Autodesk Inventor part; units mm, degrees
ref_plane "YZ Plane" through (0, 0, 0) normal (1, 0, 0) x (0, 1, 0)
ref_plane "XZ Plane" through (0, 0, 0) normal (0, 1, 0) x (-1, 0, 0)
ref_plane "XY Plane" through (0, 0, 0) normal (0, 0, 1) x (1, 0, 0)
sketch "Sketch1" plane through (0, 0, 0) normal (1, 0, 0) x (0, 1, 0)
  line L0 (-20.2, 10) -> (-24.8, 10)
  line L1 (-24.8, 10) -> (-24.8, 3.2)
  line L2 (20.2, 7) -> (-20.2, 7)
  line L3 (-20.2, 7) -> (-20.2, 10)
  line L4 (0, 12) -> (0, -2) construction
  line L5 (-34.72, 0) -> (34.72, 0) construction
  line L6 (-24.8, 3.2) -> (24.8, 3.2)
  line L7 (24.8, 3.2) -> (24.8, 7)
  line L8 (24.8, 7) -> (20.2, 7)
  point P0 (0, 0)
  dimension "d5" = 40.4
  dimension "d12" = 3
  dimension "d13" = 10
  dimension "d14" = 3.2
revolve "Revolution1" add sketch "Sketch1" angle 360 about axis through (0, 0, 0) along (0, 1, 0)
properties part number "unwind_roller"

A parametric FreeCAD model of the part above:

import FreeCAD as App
import Part
import Sketcher


def add_polygon(sketch, points):
    """Adds a closed chain of lines whose ends are joined by coincident constraints."""
    first, n = sketch.GeometryCount, len(points)
    for a, b in zip(points, points[1:] + points[:1]):
        sketch.addGeometry(Part.LineSegment(App.Vector(*a, 0), App.Vector(*b, 0)), False)
    for i in range(n):
        sketch.addConstraint(Sketcher.Constraint("Coincident", first + i, 2, first + (i + 1) % n, 1))

doc = App.newDocument("Part")
body = doc.addObject("PartDesign::Body", "Body")

# Sketch on YZ plane
sketch1 = body.newObject("Sketcher::SketchObject", "Sketch")
sketch1.AttachmentSupport = (doc.getObject("YZ_Plane"), [""])
sketch1.MapMode = "FlatFace"
add_polygon(sketch1, [(-20.2, 7), (-20.2, 10), (-24.8, 10), (-24.8, 3.2), (24.8, 3.2), (24.8, 7)])  # lines 0-5
sketch1.addConstraint(Sketcher.Constraint("Vertical", 0))
sketch1.addConstraint(Sketcher.Constraint("Horizontal", 1))
sketch1.addConstraint(Sketcher.Constraint("Vertical", 2))
sketch1.addConstraint(Sketcher.Constraint("Horizontal", 3))
sketch1.addConstraint(Sketcher.Constraint("Vertical", 4))
sketch1.addConstraint(Sketcher.Constraint("Horizontal", 5))
sketch1.addConstraint(Sketcher.Constraint("DistanceY", 0, 1, 0, 2, 3.0))
sketch1.addConstraint(Sketcher.Constraint("DistanceY", -1, 1, 0, 2, 10.0))
sketch1.addConstraint(Sketcher.Constraint("DistanceY", -1, 1, 2, 2, 3.2))
sketch1.addConstraint(Sketcher.Constraint("DistanceX", 5, 2, 5, 1, 45.0))
sketch1.addConstraint(Sketcher.Constraint("DistanceX", 1, 2, 1, 1, 4.6))
sketch1.addConstraint(Sketcher.Constraint("DistanceX", 0, 2, -1, 1, 20.2))
revolution = body.newObject("PartDesign::Revolution", "Revolution")
revolution.Profile = sketch1
revolution.ReferenceAxis = (sketch1, ["H_Axis"])
revolution.Angle = 360

doc.recompute()
